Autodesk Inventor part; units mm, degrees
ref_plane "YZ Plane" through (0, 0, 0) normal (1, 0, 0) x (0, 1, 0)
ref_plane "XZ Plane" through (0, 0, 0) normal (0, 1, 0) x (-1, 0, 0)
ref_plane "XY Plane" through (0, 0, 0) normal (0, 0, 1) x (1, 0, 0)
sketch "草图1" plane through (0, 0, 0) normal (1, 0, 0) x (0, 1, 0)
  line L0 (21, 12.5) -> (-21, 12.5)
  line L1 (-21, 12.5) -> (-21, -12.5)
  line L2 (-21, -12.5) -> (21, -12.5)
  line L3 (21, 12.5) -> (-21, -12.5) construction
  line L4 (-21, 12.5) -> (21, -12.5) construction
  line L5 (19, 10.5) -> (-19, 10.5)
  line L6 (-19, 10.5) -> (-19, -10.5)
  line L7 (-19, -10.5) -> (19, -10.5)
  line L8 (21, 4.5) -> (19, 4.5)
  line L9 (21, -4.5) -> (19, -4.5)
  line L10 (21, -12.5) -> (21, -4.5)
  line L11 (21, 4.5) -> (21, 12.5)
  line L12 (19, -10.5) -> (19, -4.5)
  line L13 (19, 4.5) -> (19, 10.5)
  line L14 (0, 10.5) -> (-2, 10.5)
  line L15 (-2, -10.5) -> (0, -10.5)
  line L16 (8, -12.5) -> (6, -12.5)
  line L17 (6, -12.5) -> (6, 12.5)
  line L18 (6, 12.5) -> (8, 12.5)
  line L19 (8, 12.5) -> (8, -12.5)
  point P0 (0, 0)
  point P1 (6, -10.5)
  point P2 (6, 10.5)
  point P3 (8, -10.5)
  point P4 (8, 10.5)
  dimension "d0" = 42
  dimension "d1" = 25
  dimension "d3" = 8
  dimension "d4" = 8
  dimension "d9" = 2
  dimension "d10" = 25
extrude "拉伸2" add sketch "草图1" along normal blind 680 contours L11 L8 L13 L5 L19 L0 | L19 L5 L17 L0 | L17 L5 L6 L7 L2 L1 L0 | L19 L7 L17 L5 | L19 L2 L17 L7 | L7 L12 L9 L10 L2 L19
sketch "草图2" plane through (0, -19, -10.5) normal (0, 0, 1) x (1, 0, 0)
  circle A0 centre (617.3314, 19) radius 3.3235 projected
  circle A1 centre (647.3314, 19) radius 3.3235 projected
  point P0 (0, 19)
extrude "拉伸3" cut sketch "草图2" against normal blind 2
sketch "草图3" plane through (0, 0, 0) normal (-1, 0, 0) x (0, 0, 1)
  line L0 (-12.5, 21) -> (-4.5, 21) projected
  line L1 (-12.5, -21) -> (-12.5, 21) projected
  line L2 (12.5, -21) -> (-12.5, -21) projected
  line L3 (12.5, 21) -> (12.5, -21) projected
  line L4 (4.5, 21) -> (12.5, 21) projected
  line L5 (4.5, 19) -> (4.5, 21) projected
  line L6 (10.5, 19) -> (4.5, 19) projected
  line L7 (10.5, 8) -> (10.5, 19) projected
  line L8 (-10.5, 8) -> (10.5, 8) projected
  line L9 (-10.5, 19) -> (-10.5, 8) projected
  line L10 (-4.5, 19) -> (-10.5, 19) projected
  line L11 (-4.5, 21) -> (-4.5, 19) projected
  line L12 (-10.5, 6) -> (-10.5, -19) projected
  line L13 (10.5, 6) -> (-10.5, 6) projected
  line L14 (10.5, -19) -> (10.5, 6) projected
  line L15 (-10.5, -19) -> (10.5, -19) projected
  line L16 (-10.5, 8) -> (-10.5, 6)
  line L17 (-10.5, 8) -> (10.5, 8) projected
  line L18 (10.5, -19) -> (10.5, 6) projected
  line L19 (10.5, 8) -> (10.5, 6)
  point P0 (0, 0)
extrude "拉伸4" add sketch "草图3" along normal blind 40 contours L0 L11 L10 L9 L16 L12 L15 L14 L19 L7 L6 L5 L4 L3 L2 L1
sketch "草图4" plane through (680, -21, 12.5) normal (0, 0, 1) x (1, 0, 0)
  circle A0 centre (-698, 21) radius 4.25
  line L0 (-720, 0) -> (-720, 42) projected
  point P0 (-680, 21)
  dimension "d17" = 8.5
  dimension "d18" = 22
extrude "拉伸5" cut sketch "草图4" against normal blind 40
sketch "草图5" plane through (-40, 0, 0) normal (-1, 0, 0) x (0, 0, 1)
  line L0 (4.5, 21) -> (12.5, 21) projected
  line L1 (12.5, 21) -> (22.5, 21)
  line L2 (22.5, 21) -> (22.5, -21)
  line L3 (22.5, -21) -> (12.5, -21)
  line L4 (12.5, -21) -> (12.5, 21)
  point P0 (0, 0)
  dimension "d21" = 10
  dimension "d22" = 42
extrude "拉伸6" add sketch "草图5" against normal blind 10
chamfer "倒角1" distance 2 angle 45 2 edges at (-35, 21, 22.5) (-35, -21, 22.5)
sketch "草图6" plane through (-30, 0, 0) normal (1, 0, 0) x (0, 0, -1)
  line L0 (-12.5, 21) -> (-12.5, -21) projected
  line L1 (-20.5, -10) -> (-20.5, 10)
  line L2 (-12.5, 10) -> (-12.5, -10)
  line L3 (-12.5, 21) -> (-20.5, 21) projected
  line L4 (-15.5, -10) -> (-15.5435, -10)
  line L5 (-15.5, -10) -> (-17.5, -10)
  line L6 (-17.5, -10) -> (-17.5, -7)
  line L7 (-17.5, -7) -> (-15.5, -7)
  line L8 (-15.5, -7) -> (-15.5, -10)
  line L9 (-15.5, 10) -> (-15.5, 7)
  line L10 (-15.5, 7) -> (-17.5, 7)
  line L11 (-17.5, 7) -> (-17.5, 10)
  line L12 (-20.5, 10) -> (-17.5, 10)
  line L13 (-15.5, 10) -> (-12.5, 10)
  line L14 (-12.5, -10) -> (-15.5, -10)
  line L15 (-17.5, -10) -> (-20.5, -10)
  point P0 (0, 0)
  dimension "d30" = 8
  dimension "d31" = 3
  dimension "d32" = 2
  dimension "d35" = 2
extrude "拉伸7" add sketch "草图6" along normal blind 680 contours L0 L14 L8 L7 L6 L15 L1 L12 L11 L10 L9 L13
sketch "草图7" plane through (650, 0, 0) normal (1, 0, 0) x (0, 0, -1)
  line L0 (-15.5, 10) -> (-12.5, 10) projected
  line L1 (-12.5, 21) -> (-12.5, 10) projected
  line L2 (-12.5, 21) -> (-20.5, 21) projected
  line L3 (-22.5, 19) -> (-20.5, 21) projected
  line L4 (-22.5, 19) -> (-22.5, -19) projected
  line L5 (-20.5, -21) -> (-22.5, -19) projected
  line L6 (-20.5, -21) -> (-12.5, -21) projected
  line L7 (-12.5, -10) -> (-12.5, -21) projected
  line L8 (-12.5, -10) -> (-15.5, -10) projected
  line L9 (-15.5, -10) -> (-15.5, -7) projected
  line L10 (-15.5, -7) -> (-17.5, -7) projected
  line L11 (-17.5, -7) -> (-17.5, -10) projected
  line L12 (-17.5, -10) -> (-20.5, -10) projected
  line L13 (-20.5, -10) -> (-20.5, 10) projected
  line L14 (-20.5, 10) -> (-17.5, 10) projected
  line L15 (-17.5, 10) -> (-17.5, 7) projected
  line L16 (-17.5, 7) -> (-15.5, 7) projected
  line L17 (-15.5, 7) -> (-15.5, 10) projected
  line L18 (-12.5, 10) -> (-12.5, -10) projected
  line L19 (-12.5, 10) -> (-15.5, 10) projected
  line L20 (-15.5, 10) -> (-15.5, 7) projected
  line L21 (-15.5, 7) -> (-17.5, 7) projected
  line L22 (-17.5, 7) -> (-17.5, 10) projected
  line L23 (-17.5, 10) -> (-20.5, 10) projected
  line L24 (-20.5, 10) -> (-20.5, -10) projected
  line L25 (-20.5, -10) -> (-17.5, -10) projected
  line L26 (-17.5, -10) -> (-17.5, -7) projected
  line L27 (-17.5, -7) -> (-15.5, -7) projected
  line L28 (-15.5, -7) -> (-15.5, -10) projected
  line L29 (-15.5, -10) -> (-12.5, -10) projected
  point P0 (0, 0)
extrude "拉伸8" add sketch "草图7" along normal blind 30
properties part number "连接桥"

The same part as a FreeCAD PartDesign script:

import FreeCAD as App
import Part
import Sketcher

V = App.Vector


def edges_at(feature, points):
    """Names of the edges that pass closest to the given points."""
    edges = feature.Shape.Edges
    near = lambda p: min(range(len(edges)), key=lambda i: edges[i].distToShape(Part.Vertex(*p))[0])
    return sorted({f"Edge{near(p) + 1}" for p in points})

doc = App.newDocument("Part")
body = doc.addObject("PartDesign::Body", "Body")

# Sketch on YZ plane
sketch1 = body.newObject("Sketcher::SketchObject", "Sketch")
sketch1.AttachmentSupport = (doc.getObject("YZ_Plane"), [""])
sketch1.MapMode = "FlatFace"
sketch1.addGeometry(Part.LineSegment(V(21, 4.5, 0), V(21, 12.5, 0)), False)
sketch1.addGeometry(Part.LineSegment(V(21, 12.5, 0), V(-21, 12.5, 0)), False)
sketch1.addGeometry(Part.LineSegment(V(-21, 12.5, 0), V(-21, -12.5, 0)), False)
sketch1.addGeometry(Part.LineSegment(V(-21, -12.5, 0), V(21, -12.5, 0)), False)
sketch1.addGeometry(Part.LineSegment(V(21, -12.5, 0), V(21, -4.5, 0)), False)
sketch1.addGeometry(Part.LineSegment(V(21, -4.5, 0), V(19, -4.5, 0)), False)
sketch1.addGeometry(Part.LineSegment(V(19, -4.5, 0), V(19, -10.5, 0)), False)
sketch1.addGeometry(Part.LineSegment(V(19, -10.5, 0), V(8, -10.5, 0)), False)
sketch1.addGeometry(Part.LineSegment(V(8, -10.5, 0), V(8, 10.5, 0)), False)
sketch1.addGeometry(Part.LineSegment(V(8, 10.5, 0), V(19, 10.5, 0)), False)
sketch1.addGeometry(Part.LineSegment(V(19, 10.5, 0), V(19, 4.5, 0)), False)
sketch1.addGeometry(Part.LineSegment(V(19, 4.5, 0), V(21, 4.5, 0)), False)
sketch1.addGeometry(Part.LineSegment(V(6, 10.5, 0), V(6, -10.5, 0)), False)
sketch1.addGeometry(Part.LineSegment(V(6, -10.5, 0), V(-19, -10.5, 0)), False)
sketch1.addGeometry(Part.LineSegment(V(-19, -10.5, 0), V(-19, 10.5, 0)), False)
sketch1.addGeometry(Part.LineSegment(V(-19, 10.5, 0), V(6, 10.5, 0)), False)
sketch1.addConstraint(Sketcher.Constraint("Coincident", 0, 2, 1, 1))
sketch1.addConstraint(Sketcher.Constraint("Coincident", 1, 2, 2, 1))
sketch1.addConstraint(Sketcher.Constraint("Coincident", 2, 2, 3, 1))
sketch1.addConstraint(Sketcher.Constraint("Coincident", 3, 2, 4, 1))
sketch1.addConstraint(Sketcher.Constraint("Coincident", 4, 2, 5, 1))
sketch1.addConstraint(Sketcher.Constraint("Coincident", 5, 2, 6, 1))
sketch1.addConstraint(Sketcher.Constraint("Coincident", 6, 2, 7, 1))
sketch1.addConstraint(Sketcher.Constraint("Coincident", 7, 2, 8, 1))
sketch1.addConstraint(Sketcher.Constraint("Coincident", 8, 2, 9, 1))
sketch1.addConstraint(Sketcher.Constraint("Coincident", 9, 2, 10, 1))
sketch1.addConstraint(Sketcher.Constraint("Coincident", 10, 2, 11, 1))
sketch1.addConstraint(Sketcher.Constraint("Coincident", 11, 2, 0, 1))
sketch1.addConstraint(Sketcher.Constraint("Coincident", 12, 2, 13, 1))
sketch1.addConstraint(Sketcher.Constraint("Coincident", 13, 2, 14, 1))
sketch1.addConstraint(Sketcher.Constraint("Coincident", 14, 2, 15, 1))
sketch1.addConstraint(Sketcher.Constraint("Coincident", 15, 2, 12, 1))
sketch1.addConstraint(Sketcher.Constraint("Vertical", 0))
sketch1.addConstraint(Sketcher.Constraint("Horizontal", 1))
sketch1.addConstraint(Sketcher.Constraint("Vertical", 2))
sketch1.addConstraint(Sketcher.Constraint("Horizontal", 3))
sketch1.addConstraint(Sketcher.Constraint("Vertical", 4))
sketch1.addConstraint(Sketcher.Constraint("Horizontal", 5))
sketch1.addConstraint(Sketcher.Constraint("Vertical", 6))
sketch1.addConstraint(Sketcher.Constraint("Horizontal", 7))
sketch1.addConstraint(Sketcher.Constraint("Vertical", 8))
sketch1.addConstraint(Sketcher.Constraint("Horizontal", 9))
sketch1.addConstraint(Sketcher.Constraint("Vertical", 10))
sketch1.addConstraint(Sketcher.Constraint("Horizontal", 11))
sketch1.addConstraint(Sketcher.Constraint("Vertical", 12))
sketch1.addConstraint(Sketcher.Constraint("Horizontal", 13))
sketch1.addConstraint(Sketcher.Constraint("Vertical", 14))
sketch1.addConstraint(Sketcher.Constraint("Horizontal", 15))
sketch1.addConstraint(Sketcher.Constraint("Symmetric", 0, 2, 2, 2, -1, 1))
sketch1.addConstraint(Sketcher.Constraint("Symmetric", 9, 2, 13, 2, -1, 1))
sketch1.addConstraint(Sketcher.Constraint("Symmetric", 6, 2, 14, 2, -1, 1))
sketch1.addConstraint(Sketcher.Constraint("Symmetric", 4, 2, 11, 2, -1))
sketch1.addConstraint(Sketcher.Constraint("Horizontal", 7, 2, 12, 2))
sketch1.addConstraint(Sketcher.Constraint("Equal", 15, 2))
sketch1.addConstraint(Sketcher.Constraint("DistanceX", 1, 2, 1, 1, 42.0))
sketch1.addConstraint(Sketcher.Constraint("DistanceX", 5, 2, 5, 1, 2.0))
sketch1.addConstraint(Sketcher.Constraint("DistanceX", 13, 2, 13, 1, 25.0))
sketch1.addConstraint(Sketcher.Constraint("DistanceY", 0, 1, 0, 2, 8.0))
sketch1.addConstraint(Sketcher.Constraint("DistanceX", -1, 1, 7, 2, 8.0))
sketch1.addConstraint(Sketcher.Constraint("DistanceY", 3, 2, 6, 2, 2.0))
pad1 = body.newObject("PartDesign::Pad", "Pad")
pad1.Profile = sketch1
pad1.Length = 680

# Sketch on XY plane
sketch2 = body.newObject("Sketcher::SketchObject", "Sketch001")
sketch2.AttachmentSupport = (doc.getObject("XY_Plane"), [""])
sketch2.MapMode = "FlatFace"
sketch2.AttachmentOffset = App.Placement(V(0, 0, -10.5), App.Rotation())
sketch2.addGeometry(Part.Circle(V(617.3, 0, 0), V(0, 0, 1), 3.3), False)
sketch2.addGeometry(Part.Circle(V(647.3, 0, 0), V(0, 0, 1), 3.3), False)
sketch2.addConstraint(Sketcher.Constraint("Equal", 0, 1))
sketch2.addConstraint(Sketcher.Constraint("PointOnObject", 0, 3, -1))
sketch2.addConstraint(Sketcher.Constraint("PointOnObject", 1, 3, -1))
sketch2.addConstraint(Sketcher.Constraint("Diameter", 0, 6.647))
sketch2.addConstraint(Sketcher.Constraint("DistanceX", 0, 3, 1, 3, 30.0))
sketch2.addConstraint(Sketcher.Constraint("DistanceX", -1, 1, 0, 3, 617.3314))
pocket1 = body.newObject("PartDesign::Pocket", "Pocket")
pocket1.Profile = sketch2
pocket1.Length = 2

# Sketch on YZ plane
sketch3 = body.newObject("Sketcher::SketchObject", "Sketch002")
sketch3.AttachmentSupport = (doc.getObject("YZ_Plane"), [""])
sketch3.MapMode = "FlatFace"
sketch3.addGeometry(Part.LineSegment(V(21, -4.5, 0), V(21, -12.5, 0)), False)
sketch3.addGeometry(Part.LineSegment(V(21, -12.5, 0), V(-21, -12.5, 0)), False)
sketch3.addGeometry(Part.LineSegment(V(-21, -12.5, 0), V(-21, 12.5, 0)), False)
sketch3.addGeometry(Part.LineSegment(V(-21, 12.5, 0), V(21, 12.5, 0)), False)
sketch3.addGeometry(Part.LineSegment(V(21, 12.5, 0), V(21, 4.5, 0)), False)
sketch3.addGeometry(Part.LineSegment(V(21, 4.5, 0), V(19, 4.5, 0)), False)
sketch3.addGeometry(Part.LineSegment(V(19, 4.5, 0), V(19, 10.5, 0)), False)
sketch3.addGeometry(Part.LineSegment(V(19, 10.5, 0), V(-19, 10.5, 0)), False)
sketch3.addGeometry(Part.LineSegment(V(-19, 10.5, 0), V(-19, -10.5, 0)), False)
sketch3.addGeometry(Part.LineSegment(V(-19, -10.5, 0), V(19, -10.5, 0)), False)
sketch3.addGeometry(Part.LineSegment(V(19, -10.5, 0), V(19, -4.5, 0)), False)
sketch3.addGeometry(Part.LineSegment(V(19, -4.5, 0), V(21, -4.5, 0)), False)
sketch3.addConstraint(Sketcher.Constraint("Coincident", 0, 2, 1, 1))
sketch3.addConstraint(Sketcher.Constraint("Coincident", 1, 2, 2, 1))
sketch3.addConstraint(Sketcher.Constraint("Coincident", 2, 2, 3, 1))
sketch3.addConstraint(Sketcher.Constraint("Coincident", 3, 2, 4, 1))
sketch3.addConstraint(Sketcher.Constraint("Coincident", 4, 2, 5, 1))
sketch3.addConstraint(Sketcher.Constraint("Coincident", 5, 2, 6, 1))
sketch3.addConstraint(Sketcher.Constraint("Coincident", 6, 2, 7, 1))
sketch3.addConstraint(Sketcher.Constraint("Coincident", 7, 2, 8, 1))
sketch3.addConstraint(Sketcher.Constraint("Coincident", 8, 2, 9, 1))
sketch3.addConstraint(Sketcher.Constraint("Coincident", 9, 2, 10, 1))
sketch3.addConstraint(Sketcher.Constraint("Coincident", 10, 2, 11, 1))
sketch3.addConstraint(Sketcher.Constraint("Coincident", 11, 2, 0, 1))
sketch3.addConstraint(Sketcher.Constraint("Vertical", 0))
sketch3.addConstraint(Sketcher.Constraint("Horizontal", 1))
sketch3.addConstraint(Sketcher.Constraint("Vertical", 2))
sketch3.addConstraint(Sketcher.Constraint("Horizontal", 3))
sketch3.addConstraint(Sketcher.Constraint("Vertical", 4))
sketch3.addConstraint(Sketcher.Constraint("Horizontal", 5))
sketch3.addConstraint(Sketcher.Constraint("Vertical", 6))
sketch3.addConstraint(Sketcher.Constraint("Horizontal", 7))
sketch3.addConstraint(Sketcher.Constraint("Vertical", 8))
sketch3.addConstraint(Sketcher.Constraint("Horizontal", 9))
sketch3.addConstraint(Sketcher.Constraint("Vertical", 10))
sketch3.addConstraint(Sketcher.Constraint("Horizontal", 11))
sketch3.addConstraint(Sketcher.Constraint("Symmetric", 0, 2, 2, 2, -1, 1))
sketch3.addConstraint(Sketcher.Constraint("Symmetric", 6, 2, 8, 2, -1, 1))
sketch3.addConstraint(Sketcher.Constraint("Symmetric", 5, 2, 10, 2, -1))
sketch3.addConstraint(Sketcher.Constraint("Vertical", 0, 2, 3, 2))
sketch3.addConstraint(Sketcher.Constraint("DistanceX", 1, 2, 1, 1, 42.0))
sketch3.addConstraint(Sketcher.Constraint("DistanceX", 5, 2, 5, 1, 2.0))
sketch3.addConstraint(Sketcher.Constraint("DistanceY", 0, 2, 0, 1, 8.0))
sketch3.addConstraint(Sketcher.Constraint("DistanceY", 2, 1, 2, 2, 25.0))
sketch3.addConstraint(Sketcher.Constraint("DistanceY", 6, 1, 6, 2, 6.0))
pad2 = body.newObject("PartDesign::Pad", "Pad001")
pad2.Profile = sketch3
pad2.Length = 40
pad2.Reversed = True

# Sketch on XY plane
sketch4 = body.newObject("Sketcher::SketchObject", "Sketch003")
sketch4.AttachmentSupport = (doc.getObject("XY_Plane"), [""])
sketch4.MapMode = "FlatFace"
sketch4.AttachmentOffset = App.Placement(V(0, 0, 12.5), App.Rotation())
sketch4.addGeometry(Part.Circle(V(-18, 0, 0), V(0, 0, 1), 4.2), False)
sketch4.addConstraint(Sketcher.Constraint("PointOnObject", 0, 3, -1))
sketch4.addConstraint(Sketcher.Constraint("Diameter", 0, 8.5))
sketch4.addConstraint(Sketcher.Constraint("DistanceX", 0, 3, -1, 1, 18.0))
pocket2 = body.newObject("PartDesign::Pocket", "Pocket001")
pocket2.Profile = sketch4
pocket2.Length = 40

# Sketch on YZ plane
sketch5 = body.newObject("Sketcher::SketchObject", "Sketch004")
sketch5.AttachmentSupport = (doc.getObject("YZ_Plane"), [""])
sketch5.MapMode = "FlatFace"
sketch5.AttachmentOffset = App.Placement(V(0, 0, -40), App.Rotation())
sketch5.addGeometry(Part.LineSegment(V(21, 22, 0), V(21, 12, 0)), False)
sketch5.addGeometry(Part.LineSegment(V(21, 12, 0), V(-21, 12, 0)), False)
sketch5.addGeometry(Part.LineSegment(V(-21, 12, 0), V(-21, 22, 0)), False)
sketch5.addGeometry(Part.LineSegment(V(-21, 22, 0), V(21, 22, 0)), False)
sketch5.addConstraint(Sketcher.Constraint("Coincident", 0, 2, 1, 1))
sketch5.addConstraint(Sketcher.Constraint("Coincident", 1, 2, 2, 1))
sketch5.addConstraint(Sketcher.Constraint("Coincident", 2, 2, 3, 1))
sketch5.addConstraint(Sketcher.Constraint("Coincident", 3, 2, 0, 1))
sketch5.addConstraint(Sketcher.Constraint("Vertical", 0))
sketch5.addConstraint(Sketcher.Constraint("Horizontal", 1))
sketch5.addConstraint(Sketcher.Constraint("Vertical", 2))
sketch5.addConstraint(Sketcher.Constraint("Horizontal", 3))
sketch5.addConstraint(Sketcher.Constraint("DistanceX", 1, 2, 1, 1, 42.0))
sketch5.addConstraint(Sketcher.Constraint("DistanceY", 0, 2, 0, 1, 10.0))
sketch5.addConstraint(Sketcher.Constraint("DistanceX", -1, 1, 0, 2, 21.0))
sketch5.addConstraint(Sketcher.Constraint("DistanceY", -1, 1, 0, 2, 12.5))
pad3 = body.newObject("PartDesign::Pad", "Pad002")
pad3.Profile = sketch5
pad3.Length = 10
doc.recompute()

chamfer = body.newObject("PartDesign::Chamfer", "Chamfer")
chamfer.Base = (pad3, edges_at(pad3, [(-35, 21, 22.5), (-35, -21, 22.5)]))
chamfer.Size = 2

# Sketch on YZ plane
sketch6 = body.newObject("Sketcher::SketchObject", "Sketch005")
sketch6.AttachmentSupport = (doc.getObject("YZ_Plane"), [""])
sketch6.MapMode = "FlatFace"
sketch6.AttachmentOffset = App.Placement(V(0, 0, -30), App.Rotation())
sketch6.addGeometry(Part.LineSegment(V(-10, 12.5, 0), V(10, 12.5, 0)), False)
sketch6.addGeometry(Part.LineSegment(V(10, 12.5, 0), V(10, 15.5, 0)), False)
sketch6.addGeometry(Part.LineSegment(V(10, 15.5, 0), V(7, 15.5, 0)), False)
sketch6.addGeometry(Part.LineSegment(V(7, 15.5, 0), V(7, 17.5, 0)), False)
sketch6.addGeometry(Part.LineSegment(V(7, 17.5, 0), V(10, 17.5, 0)), False)
sketch6.addGeometry(Part.LineSegment(V(10, 17.5, 0), V(10, 20.5, 0)), False)
sketch6.addGeometry(Part.LineSegment(V(10, 20.5, 0), V(-10, 20.5, 0)), False)
sketch6.addGeometry(Part.LineSegment(V(-10, 20.5, 0), V(-10, 17.5, 0)), False)
sketch6.addGeometry(Part.LineSegment(V(-10, 17.5, 0), V(-7, 17.5, 0)), False)
sketch6.addGeometry(Part.LineSegment(V(-7, 17.5, 0), V(-7, 15.5, 0)), False)
sketch6.addGeometry(Part.LineSegment(V(-7, 15.5, 0), V(-10, 15.5, 0)), False)
sketch6.addGeometry(Part.LineSegment(V(-10, 15.5, 0), V(-10, 12.5, 0)), False)
sketch6.addConstraint(Sketcher.Constraint("Coincident", 0, 2, 1, 1))
sketch6.addConstraint(Sketcher.Constraint("Coincident", 1, 2, 2, 1))
sketch6.addConstraint(Sketcher.Constraint("Coincident", 2, 2, 3, 1))
sketch6.addConstraint(Sketcher.Constraint("Coincident", 3, 2, 4, 1))
sketch6.addConstraint(Sketcher.Constraint("Coincident", 4, 2, 5, 1))
sketch6.addConstraint(Sketcher.Constraint("Coincident", 5, 2, 6, 1))
sketch6.addConstraint(Sketcher.Constraint("Coincident", 6, 2, 7, 1))
sketch6.addConstraint(Sketcher.Constraint("Coincident", 7, 2, 8, 1))
sketch6.addConstraint(Sketcher.Constraint("Coincident", 8, 2, 9, 1))
sketch6.addConstraint(Sketcher.Constraint("Coincident", 9, 2, 10, 1))
sketch6.addConstraint(Sketcher.Constraint("Coincident", 10, 2, 11, 1))
sketch6.addConstraint(Sketcher.Constraint("Coincident", 11, 2, 0, 1))
sketch6.addConstraint(Sketcher.Constraint("Horizontal", 0))
sketch6.addConstraint(Sketcher.Constraint("Vertical", 1))
sketch6.addConstraint(Sketcher.Constraint("Horizontal", 2))
sketch6.addConstraint(Sketcher.Constraint("Vertical", 3))
sketch6.addConstraint(Sketcher.Constraint("Horizontal", 4))
sketch6.addConstraint(Sketcher.Constraint("Vertical", 5))
sketch6.addConstraint(Sketcher.Constraint("Horizontal", 6))
sketch6.addConstraint(Sketcher.Constraint("Vertical", 7))
sketch6.addConstraint(Sketcher.Constraint("Horizontal", 8))
sketch6.addConstraint(Sketcher.Constraint("Vertical", 9))
sketch6.addConstraint(Sketcher.Constraint("Horizontal", 10))
sketch6.addConstraint(Sketcher.Constraint("Vertical", 11))
sketch6.addConstraint(Sketcher.Constraint("Symmetric", 4, 2, 7, 2, -2))
sketch6.addConstraint(Sketcher.Constraint("Symmetric", 2, 2, 9, 2, -2))
sketch6.addConstraint(Sketcher.Constraint("Vertical", 1, 2, 4, 2))
sketch6.addConstraint(Sketcher.Constraint("Vertical", 7, 2, 10, 2))
sketch6.addConstraint(Sketcher.Constraint("Equal", 10, 1))
sketch6.addConstraint(Sketcher.Constraint("Equal", 1, 5))
sketch6.addConstraint(Sketcher.Constraint("DistanceX", 2, 2, 2, 1, 3.0))
sketch6.addConstraint(Sketcher.Constraint("DistanceY", 3, 1, 3, 2, 2.0))
sketch6.addConstraint(Sketcher.Constraint("DistanceX", 0, 1, 0, 2, 20.0))
sketch6.addConstraint(Sketcher.Constraint("DistanceY", -1, 1, 0, 2, 12.5))
pad4 = body.newObject("PartDesign::Pad", "Pad003")
pad4.Profile = sketch6
pad4.Length = 680

# Sketch on YZ plane
sketch7 = body.newObject("Sketcher::SketchObject", "Sketch006")
sketch7.AttachmentSupport = (doc.getObject("YZ_Plane"), [""])
sketch7.MapMode = "FlatFace"
sketch7.AttachmentOffset = App.Placement(V(0, 0, 650), App.Rotation())
sketch7.addGeometry(Part.LineSegment(V(-21, 12.5, 0), V(21, 12.5, 0)), False)
sketch7.addGeometry(Part.LineSegment(V(21, 12.5, 0), V(21, 20.5, 0)), False)
sketch7.addGeometry(Part.LineSegment(V(21, 20.5, 0), V(19, 22.5, 0)), False)
sketch7.addGeometry(Part.LineSegment(V(19, 22.5, 0), V(-19, 22.5, 0)), False)
sketch7.addGeometry(Part.LineSegment(V(-19, 22.5, 0), V(-21, 20.5, 0)), False)
sketch7.addGeometry(Part.LineSegment(V(-21, 20.5, 0), V(-21, 12.5, 0)), False)
sketch7.addConstraint(Sketcher.Constraint("Coincident", 0, 2, 1, 1))
sketch7.addConstraint(Sketcher.Constraint("Coincident", 1, 2, 2, 1))
sketch7.addConstraint(Sketcher.Constraint("Coincident", 2, 2, 3, 1))
sketch7.addConstraint(Sketcher.Constraint("Coincident", 3, 2, 4, 1))
sketch7.addConstraint(Sketcher.Constraint("Coincident", 4, 2, 5, 1))
sketch7.addConstraint(Sketcher.Constraint("Coincident", 5, 2, 0, 1))
sketch7.addConstraint(Sketcher.Constraint("Horizontal", 0))
sketch7.addConstraint(Sketcher.Constraint("Vertical", 1))
sketch7.addConstraint(Sketcher.Constraint("Horizontal", 3))
sketch7.addConstraint(Sketcher.Constraint("Vertical", 5))
sketch7.addConstraint(Sketcher.Constraint("Symmetric", 1, 2, 4, 2, -2))
sketch7.addConstraint(Sketcher.Constraint("Perpendicular", 2, 4))
sketch7.addConstraint(Sketcher.Constraint("Equal", 2, 4))
sketch7.addConstraint(Sketcher.Constraint("DistanceX", 0, 1, 0, 2, 42.0))
sketch7.addConstraint(Sketcher.Constraint("DistanceX", 3, 2, 3, 1, 38.0))
sketch7.addConstraint(Sketcher.Constraint("DistanceY", 1, 1, 1, 2, 8.0))
sketch7.addConstraint(Sketcher.Constraint("DistanceY", -1, 1, 0, 2, 12.5))
pad5 = body.newObject("PartDesign::Pad", "Pad004")
pad5.Profile = sketch7
pad5.Length = 30

doc.recompute()
